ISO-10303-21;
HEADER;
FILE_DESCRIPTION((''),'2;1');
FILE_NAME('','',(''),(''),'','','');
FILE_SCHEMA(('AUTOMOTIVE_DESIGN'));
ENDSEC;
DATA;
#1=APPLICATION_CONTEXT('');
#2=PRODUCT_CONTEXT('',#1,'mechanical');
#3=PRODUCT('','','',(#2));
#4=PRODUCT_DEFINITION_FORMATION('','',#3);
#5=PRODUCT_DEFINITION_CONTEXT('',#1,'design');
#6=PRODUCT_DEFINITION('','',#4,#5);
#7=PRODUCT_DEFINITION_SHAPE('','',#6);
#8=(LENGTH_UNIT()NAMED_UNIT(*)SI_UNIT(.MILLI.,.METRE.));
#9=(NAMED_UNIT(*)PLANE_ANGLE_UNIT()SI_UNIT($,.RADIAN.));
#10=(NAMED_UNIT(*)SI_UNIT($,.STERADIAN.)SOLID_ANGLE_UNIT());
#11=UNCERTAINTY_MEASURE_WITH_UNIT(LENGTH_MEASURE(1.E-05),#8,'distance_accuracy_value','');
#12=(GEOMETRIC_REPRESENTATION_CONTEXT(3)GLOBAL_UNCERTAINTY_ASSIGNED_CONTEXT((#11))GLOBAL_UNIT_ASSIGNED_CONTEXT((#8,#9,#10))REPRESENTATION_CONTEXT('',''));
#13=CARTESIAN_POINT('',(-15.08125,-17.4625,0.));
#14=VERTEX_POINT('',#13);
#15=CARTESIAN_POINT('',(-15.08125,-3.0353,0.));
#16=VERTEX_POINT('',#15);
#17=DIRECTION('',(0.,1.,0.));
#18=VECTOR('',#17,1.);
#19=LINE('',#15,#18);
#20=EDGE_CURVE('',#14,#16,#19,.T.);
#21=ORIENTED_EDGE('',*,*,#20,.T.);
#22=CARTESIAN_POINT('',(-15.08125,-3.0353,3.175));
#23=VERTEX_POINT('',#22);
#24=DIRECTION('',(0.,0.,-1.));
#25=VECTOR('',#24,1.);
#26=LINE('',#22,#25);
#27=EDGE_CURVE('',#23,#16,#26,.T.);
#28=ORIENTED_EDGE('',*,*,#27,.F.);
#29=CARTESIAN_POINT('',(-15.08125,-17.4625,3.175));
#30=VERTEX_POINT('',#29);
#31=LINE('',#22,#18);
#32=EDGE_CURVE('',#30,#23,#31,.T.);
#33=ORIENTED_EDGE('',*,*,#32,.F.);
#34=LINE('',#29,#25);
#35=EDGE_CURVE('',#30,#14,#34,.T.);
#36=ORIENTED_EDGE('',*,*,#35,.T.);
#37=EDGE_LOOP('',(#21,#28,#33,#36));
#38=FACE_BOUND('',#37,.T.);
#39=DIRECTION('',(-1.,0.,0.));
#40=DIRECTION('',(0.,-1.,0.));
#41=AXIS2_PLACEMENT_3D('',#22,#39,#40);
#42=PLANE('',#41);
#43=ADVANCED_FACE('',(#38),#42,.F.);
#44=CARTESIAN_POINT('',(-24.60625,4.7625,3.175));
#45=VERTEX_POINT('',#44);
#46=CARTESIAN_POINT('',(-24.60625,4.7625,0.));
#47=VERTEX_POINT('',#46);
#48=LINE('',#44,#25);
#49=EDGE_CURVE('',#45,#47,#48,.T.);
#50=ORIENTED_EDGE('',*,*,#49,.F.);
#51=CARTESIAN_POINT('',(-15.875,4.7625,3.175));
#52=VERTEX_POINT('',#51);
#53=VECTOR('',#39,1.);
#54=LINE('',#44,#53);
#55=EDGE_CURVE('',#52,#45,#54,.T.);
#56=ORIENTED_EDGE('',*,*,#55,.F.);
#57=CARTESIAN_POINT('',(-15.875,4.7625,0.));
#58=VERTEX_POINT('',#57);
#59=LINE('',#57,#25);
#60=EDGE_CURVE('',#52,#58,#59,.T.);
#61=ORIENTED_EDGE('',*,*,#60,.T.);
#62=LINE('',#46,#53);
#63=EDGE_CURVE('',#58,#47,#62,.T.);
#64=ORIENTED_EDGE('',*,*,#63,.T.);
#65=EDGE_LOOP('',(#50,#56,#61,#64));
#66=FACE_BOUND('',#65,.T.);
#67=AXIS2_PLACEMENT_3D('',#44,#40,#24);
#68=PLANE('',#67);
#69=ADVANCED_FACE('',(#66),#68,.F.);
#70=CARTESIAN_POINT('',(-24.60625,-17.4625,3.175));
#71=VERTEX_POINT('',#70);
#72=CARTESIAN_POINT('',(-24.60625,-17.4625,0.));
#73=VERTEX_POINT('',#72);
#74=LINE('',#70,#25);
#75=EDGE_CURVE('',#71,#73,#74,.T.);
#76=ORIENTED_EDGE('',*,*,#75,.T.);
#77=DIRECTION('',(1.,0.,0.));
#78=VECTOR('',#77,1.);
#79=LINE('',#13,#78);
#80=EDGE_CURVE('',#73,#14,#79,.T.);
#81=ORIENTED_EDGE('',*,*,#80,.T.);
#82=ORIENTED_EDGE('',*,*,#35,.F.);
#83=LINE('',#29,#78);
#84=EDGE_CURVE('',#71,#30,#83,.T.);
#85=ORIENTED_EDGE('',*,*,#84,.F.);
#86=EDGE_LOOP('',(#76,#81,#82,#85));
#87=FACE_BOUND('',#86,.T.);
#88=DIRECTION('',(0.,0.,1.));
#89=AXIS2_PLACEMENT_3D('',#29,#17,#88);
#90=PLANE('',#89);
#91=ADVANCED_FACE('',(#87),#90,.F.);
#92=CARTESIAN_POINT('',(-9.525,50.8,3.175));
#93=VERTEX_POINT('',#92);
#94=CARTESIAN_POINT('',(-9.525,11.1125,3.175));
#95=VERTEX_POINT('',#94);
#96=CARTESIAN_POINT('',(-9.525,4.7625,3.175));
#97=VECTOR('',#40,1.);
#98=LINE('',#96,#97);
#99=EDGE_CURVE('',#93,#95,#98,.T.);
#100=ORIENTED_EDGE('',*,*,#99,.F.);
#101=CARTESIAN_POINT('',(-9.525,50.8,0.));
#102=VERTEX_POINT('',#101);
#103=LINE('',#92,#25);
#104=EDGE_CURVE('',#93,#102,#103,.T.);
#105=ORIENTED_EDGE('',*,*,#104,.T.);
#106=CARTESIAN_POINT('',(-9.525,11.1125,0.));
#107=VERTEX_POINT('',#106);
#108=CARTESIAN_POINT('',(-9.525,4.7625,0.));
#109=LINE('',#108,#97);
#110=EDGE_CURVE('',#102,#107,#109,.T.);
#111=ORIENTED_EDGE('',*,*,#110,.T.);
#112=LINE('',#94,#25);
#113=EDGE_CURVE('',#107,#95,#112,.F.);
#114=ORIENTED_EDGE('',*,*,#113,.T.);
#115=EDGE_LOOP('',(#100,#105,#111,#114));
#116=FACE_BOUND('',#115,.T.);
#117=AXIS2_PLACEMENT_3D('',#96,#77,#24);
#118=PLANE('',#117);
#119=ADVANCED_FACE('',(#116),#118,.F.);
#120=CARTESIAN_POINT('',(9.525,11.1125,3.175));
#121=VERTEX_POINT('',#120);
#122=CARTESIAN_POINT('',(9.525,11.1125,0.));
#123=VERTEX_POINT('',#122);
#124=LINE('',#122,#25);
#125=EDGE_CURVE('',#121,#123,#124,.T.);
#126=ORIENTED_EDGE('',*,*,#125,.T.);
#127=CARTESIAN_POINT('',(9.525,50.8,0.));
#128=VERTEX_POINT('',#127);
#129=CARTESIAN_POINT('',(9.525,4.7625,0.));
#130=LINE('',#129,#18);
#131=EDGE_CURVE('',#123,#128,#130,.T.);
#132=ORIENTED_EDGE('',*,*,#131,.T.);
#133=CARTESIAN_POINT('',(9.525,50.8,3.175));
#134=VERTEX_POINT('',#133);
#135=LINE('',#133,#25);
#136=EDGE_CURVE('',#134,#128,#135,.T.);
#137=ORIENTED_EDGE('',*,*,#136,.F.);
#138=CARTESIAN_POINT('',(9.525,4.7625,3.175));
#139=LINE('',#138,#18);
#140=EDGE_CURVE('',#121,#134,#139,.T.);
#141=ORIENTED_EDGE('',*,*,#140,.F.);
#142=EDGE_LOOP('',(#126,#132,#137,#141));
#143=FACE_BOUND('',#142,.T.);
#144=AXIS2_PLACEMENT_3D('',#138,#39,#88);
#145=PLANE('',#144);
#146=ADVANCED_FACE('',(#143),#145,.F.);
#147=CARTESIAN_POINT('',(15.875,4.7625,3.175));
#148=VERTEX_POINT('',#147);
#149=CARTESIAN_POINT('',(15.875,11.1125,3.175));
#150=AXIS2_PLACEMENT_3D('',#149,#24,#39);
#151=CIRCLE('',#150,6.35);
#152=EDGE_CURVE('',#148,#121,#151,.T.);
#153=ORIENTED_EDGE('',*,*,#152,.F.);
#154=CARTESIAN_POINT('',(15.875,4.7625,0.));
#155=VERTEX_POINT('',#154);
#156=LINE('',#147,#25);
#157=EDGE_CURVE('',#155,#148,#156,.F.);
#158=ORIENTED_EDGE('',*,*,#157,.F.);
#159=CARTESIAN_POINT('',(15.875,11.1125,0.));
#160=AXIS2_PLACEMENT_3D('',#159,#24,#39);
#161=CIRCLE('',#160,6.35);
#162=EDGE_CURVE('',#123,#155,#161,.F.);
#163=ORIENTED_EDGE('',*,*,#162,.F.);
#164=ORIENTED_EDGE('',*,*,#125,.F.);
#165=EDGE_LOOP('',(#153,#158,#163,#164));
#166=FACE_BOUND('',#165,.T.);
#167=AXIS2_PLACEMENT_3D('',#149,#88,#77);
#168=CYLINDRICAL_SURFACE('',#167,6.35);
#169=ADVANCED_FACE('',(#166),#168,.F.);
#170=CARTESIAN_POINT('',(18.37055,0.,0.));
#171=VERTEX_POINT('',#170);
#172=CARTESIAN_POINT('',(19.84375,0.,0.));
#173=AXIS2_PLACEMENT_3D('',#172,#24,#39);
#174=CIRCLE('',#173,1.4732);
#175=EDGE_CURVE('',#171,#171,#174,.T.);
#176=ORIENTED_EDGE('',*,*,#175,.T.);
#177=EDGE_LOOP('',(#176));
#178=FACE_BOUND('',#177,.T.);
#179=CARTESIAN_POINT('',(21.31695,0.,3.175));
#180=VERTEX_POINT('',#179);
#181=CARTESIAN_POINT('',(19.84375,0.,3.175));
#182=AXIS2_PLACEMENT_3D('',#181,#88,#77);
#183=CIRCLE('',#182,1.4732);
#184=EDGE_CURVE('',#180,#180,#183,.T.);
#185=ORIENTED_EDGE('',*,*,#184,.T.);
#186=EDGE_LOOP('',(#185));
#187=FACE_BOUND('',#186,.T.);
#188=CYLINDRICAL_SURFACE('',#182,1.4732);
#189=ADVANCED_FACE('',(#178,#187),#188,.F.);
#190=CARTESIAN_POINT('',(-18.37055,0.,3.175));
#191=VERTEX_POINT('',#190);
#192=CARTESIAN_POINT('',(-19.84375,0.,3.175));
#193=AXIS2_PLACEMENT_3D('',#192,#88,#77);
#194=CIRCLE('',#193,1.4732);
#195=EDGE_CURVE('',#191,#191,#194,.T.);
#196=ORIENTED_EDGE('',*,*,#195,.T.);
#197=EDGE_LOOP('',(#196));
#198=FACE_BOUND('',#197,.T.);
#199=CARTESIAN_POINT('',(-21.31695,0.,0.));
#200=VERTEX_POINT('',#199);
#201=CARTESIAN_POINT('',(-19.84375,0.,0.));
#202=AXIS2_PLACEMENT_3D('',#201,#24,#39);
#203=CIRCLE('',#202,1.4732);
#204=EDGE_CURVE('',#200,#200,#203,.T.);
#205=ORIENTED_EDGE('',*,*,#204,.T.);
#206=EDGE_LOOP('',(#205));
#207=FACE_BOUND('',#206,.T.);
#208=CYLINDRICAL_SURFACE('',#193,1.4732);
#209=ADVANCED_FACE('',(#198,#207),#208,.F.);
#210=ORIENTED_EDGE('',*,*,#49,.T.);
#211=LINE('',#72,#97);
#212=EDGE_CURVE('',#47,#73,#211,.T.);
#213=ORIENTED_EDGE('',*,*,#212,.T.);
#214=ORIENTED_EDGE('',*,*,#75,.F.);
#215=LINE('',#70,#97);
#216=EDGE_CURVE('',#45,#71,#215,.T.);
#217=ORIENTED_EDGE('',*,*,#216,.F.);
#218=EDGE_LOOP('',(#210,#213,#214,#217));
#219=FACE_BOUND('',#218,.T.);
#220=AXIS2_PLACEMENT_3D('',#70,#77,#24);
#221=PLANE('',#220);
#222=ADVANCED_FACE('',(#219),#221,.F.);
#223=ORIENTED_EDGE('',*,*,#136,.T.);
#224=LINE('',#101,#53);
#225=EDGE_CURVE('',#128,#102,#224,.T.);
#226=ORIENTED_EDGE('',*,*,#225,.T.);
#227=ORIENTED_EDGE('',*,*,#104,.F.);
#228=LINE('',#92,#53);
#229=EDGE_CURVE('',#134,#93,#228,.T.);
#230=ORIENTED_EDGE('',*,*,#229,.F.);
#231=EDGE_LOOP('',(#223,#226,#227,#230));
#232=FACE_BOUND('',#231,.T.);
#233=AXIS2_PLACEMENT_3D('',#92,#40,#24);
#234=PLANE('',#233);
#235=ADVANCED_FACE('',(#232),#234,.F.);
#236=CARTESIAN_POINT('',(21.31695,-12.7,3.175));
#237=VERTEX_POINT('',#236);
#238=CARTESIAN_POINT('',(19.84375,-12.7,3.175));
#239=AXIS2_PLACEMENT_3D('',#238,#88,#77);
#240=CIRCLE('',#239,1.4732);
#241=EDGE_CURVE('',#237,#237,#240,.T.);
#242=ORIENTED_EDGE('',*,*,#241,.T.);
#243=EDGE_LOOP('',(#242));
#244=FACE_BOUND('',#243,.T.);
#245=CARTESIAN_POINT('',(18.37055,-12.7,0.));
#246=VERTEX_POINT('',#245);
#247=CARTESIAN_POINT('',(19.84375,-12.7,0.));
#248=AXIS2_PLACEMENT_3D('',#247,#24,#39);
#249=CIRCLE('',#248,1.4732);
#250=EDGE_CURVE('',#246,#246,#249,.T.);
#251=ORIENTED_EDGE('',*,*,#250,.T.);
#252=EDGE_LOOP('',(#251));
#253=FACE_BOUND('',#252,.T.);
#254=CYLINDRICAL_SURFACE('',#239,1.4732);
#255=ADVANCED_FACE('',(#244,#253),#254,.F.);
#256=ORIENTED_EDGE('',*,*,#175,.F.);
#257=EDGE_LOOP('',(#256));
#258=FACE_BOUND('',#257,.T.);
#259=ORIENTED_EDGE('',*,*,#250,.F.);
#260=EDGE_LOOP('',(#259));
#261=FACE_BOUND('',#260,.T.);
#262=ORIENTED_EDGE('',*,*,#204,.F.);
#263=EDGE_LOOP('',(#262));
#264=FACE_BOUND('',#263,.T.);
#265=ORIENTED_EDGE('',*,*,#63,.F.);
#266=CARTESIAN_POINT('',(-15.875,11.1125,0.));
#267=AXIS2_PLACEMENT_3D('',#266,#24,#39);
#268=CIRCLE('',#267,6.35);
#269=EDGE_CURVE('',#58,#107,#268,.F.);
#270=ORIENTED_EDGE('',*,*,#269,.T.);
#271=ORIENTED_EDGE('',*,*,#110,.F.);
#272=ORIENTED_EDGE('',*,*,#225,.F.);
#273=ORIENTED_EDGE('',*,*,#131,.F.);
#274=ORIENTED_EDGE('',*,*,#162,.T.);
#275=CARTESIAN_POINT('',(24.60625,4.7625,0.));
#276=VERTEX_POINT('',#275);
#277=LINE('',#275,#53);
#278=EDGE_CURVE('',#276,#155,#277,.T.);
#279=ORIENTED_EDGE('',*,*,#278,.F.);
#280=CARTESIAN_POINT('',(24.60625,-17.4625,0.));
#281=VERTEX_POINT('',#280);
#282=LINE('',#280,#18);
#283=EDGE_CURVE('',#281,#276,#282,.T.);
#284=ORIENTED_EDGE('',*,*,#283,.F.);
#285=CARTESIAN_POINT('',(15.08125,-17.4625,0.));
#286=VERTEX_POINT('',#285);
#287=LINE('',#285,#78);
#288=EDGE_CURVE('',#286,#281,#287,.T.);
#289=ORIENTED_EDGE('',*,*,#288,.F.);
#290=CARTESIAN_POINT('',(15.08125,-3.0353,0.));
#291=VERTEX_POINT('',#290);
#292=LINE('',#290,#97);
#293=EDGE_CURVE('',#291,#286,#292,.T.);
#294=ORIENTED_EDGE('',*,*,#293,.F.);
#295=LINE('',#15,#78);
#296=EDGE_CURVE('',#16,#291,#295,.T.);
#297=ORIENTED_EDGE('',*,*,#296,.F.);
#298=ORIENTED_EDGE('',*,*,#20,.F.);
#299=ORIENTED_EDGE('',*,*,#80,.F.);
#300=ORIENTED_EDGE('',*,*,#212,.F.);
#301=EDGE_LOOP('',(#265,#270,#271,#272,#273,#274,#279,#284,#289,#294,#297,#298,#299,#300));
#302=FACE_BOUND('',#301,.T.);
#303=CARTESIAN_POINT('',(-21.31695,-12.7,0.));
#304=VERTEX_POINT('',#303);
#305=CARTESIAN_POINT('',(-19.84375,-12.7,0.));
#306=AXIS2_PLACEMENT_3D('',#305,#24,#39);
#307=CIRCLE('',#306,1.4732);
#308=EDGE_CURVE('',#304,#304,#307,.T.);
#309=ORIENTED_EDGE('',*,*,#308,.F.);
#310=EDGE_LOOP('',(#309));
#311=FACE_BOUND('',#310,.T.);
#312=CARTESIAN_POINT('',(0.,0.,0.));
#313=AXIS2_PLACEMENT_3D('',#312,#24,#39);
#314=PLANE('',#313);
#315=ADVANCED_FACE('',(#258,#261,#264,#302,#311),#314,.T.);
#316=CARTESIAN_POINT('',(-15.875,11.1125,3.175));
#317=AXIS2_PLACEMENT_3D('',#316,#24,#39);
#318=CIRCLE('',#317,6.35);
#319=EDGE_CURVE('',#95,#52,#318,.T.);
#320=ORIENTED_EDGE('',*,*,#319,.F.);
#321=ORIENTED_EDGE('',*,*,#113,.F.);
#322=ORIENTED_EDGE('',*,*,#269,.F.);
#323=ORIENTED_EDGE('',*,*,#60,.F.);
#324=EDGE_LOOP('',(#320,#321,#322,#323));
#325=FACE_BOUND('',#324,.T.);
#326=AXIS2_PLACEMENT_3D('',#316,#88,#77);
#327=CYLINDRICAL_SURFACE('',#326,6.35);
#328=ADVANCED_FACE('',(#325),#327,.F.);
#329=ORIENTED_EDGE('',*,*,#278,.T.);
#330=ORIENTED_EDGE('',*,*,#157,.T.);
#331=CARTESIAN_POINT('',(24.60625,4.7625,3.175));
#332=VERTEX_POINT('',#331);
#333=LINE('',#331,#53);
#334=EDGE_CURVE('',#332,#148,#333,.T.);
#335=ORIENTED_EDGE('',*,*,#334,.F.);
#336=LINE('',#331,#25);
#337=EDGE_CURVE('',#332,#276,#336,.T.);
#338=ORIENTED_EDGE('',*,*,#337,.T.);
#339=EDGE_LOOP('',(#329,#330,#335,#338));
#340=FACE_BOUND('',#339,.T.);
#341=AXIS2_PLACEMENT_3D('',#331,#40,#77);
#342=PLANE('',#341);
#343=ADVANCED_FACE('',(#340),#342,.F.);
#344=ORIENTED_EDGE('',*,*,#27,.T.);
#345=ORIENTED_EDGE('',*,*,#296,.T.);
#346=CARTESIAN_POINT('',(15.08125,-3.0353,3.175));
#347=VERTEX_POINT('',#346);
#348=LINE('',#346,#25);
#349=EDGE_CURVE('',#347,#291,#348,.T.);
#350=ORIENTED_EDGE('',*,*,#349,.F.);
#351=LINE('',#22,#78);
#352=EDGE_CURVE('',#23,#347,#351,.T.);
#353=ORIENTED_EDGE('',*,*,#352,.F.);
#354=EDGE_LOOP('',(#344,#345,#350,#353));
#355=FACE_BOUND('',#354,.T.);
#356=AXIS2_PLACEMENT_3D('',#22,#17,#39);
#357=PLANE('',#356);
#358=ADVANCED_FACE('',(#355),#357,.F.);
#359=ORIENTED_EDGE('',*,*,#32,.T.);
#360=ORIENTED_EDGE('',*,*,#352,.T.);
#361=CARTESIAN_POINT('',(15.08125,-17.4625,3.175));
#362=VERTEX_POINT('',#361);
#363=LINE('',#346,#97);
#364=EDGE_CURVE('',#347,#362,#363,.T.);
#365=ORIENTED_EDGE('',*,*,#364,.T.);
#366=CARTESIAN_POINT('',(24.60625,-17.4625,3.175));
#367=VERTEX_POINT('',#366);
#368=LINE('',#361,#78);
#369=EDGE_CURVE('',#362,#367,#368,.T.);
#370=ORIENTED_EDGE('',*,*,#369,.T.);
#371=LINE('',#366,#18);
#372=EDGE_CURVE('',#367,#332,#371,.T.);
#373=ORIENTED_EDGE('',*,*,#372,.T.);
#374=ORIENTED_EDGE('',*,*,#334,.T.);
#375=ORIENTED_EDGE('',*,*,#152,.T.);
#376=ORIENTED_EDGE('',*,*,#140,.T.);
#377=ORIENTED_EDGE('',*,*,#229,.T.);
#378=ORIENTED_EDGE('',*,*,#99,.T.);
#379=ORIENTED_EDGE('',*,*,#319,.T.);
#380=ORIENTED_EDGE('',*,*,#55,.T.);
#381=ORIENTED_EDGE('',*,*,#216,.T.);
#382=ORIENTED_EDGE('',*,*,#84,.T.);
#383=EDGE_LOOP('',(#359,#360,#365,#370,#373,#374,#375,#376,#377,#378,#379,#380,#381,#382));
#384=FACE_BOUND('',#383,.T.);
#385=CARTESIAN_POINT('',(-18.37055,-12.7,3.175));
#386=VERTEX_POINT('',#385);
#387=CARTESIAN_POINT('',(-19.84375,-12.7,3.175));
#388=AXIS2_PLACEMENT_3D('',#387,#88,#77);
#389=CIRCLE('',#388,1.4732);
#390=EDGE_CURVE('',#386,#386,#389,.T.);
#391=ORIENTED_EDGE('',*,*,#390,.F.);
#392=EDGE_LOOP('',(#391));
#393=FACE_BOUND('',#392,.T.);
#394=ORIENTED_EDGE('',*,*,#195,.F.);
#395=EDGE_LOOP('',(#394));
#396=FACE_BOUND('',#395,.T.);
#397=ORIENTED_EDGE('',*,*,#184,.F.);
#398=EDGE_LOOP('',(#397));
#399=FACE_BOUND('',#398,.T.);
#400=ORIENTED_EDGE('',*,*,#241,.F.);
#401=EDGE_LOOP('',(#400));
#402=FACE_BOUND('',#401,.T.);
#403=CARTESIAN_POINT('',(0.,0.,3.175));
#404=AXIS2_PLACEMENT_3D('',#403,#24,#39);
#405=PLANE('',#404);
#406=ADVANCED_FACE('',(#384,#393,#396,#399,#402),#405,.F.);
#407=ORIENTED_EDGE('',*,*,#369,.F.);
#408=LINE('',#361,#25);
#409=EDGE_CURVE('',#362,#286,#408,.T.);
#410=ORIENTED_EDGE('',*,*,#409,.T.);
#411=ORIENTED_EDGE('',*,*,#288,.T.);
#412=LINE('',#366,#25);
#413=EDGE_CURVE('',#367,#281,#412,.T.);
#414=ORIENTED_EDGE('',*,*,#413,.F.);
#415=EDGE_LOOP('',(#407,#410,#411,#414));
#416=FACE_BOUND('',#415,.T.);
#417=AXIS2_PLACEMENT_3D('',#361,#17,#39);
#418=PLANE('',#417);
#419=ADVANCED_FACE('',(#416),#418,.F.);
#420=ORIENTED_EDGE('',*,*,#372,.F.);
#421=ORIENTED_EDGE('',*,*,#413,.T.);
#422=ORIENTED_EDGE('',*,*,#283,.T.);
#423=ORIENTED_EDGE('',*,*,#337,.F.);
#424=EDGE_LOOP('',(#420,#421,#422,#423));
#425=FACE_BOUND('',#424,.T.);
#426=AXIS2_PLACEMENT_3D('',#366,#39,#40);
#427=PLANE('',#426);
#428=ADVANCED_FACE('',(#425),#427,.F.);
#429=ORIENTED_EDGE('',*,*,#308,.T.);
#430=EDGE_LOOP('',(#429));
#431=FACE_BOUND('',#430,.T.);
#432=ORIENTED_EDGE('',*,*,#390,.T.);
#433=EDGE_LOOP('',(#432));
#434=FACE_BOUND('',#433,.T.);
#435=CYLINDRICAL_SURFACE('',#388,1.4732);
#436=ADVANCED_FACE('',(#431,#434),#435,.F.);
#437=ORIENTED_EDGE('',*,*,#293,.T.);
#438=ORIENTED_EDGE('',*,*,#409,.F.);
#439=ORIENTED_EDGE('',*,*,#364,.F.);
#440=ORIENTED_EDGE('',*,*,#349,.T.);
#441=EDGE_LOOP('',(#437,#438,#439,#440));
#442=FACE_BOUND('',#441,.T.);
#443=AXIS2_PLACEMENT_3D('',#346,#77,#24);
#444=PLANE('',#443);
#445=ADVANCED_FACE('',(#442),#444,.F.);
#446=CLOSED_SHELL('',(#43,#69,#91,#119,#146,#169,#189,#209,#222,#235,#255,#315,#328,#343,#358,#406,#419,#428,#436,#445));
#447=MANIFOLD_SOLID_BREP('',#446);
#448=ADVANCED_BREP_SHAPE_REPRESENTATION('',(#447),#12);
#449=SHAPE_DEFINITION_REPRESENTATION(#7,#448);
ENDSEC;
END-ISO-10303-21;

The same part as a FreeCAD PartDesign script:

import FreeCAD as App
import Part
import Sketcher
from FreeCAD import Vector
Q = App.Units.Quantity


def edges_at(feature, points):
    """Names of the edges that pass closest to the given points."""
    edges = feature.Shape.Edges
    near = lambda p: min(range(len(edges)), key=lambda i: edges[i].distToShape(Part.Vertex(*p))[0])
    return sorted({f"Edge{near(p) + 1}" for p in points})


def add_polygon(sketch, points):
    """Adds a closed chain of lines whose ends are joined by coincident constraints."""
    first, n = sketch.GeometryCount, len(points)
    for a, b in zip(points, points[1:] + points[:1]):
        sketch.addGeometry(Part.LineSegment(App.Vector(*a, 0), App.Vector(*b, 0)), False)
    for i in range(n):
        sketch.addConstraint(Sketcher.Constraint("Coincident", first + i, 2, first + (i + 1) % n, 1))

doc = App.newDocument("Part")
body = doc.addObject("PartDesign::Body", "Body")

# Sketch on XY plane
sketch1 = body.newObject("Sketcher::SketchObject", "Sketch")
sketch1.AttachmentSupport = (doc.getObject("XY_Plane"), [""])
sketch1.MapMode = "FlatFace"
add_polygon(sketch1, [(-15, -17), (-15, -3), (15, -3), (15, -17), (25, -17), (25, 5), (10, 5), (10, 51), (-10, 51), (-10, 5), (-25, 5), (-25, -17)])  # lines 0-11
sketch1.addConstraint(Sketcher.Constraint("Vertical", 0))
sketch1.addConstraint(Sketcher.Constraint("Horizontal", 1))
sketch1.addConstraint(Sketcher.Constraint("Vertical", 2))
sketch1.addConstraint(Sketcher.Constraint("Horizontal", 3))
sketch1.addConstraint(Sketcher.Constraint("Vertical", 4))
sketch1.addConstraint(Sketcher.Constraint("Horizontal", 5))
sketch1.addConstraint(Sketcher.Constraint("Vertical", 6))
sketch1.addConstraint(Sketcher.Constraint("Horizontal", 7))
sketch1.addConstraint(Sketcher.Constraint("Vertical", 8))
sketch1.addConstraint(Sketcher.Constraint("Horizontal", 9))
sketch1.addConstraint(Sketcher.Constraint("Vertical", 10))
sketch1.addConstraint(Sketcher.Constraint("Horizontal", 11))
sketch1.addConstraint(Sketcher.Constraint("Symmetric", 5, 2, 8, 2, -2))
sketch1.addConstraint(Sketcher.Constraint("Symmetric", 3, 2, 10, 2, -2))
sketch1.addConstraint(Sketcher.Constraint("Equal", 3, 11))
sketch1.addConstraint(Sketcher.Constraint("DistanceY", -1, 1, 6, 2, Q("2 in")))
sketch1.addConstraint(Sketcher.Constraint("DistanceX", 7, 2, 7, 1, Q("0.75 in")))
sketch1.addConstraint(Sketcher.Constraint("DistanceX", 1, 1, 1, 2, Q("1.1875 in")))
sketch1.addConstraint(Sketcher.Constraint("DistanceX", 3, 1, 3, 2, Q("0.375 in")))
sketch1.addConstraint(Sketcher.Constraint("DistanceY", 0, 1, 0, 2, Q("0.568 in")))
sketch1.addConstraint(Sketcher.Constraint("DistanceY", 4, 1, 4, 2, Q("0.875 in")))
sketch1.addConstraint(Sketcher.Constraint("DistanceY", 6, 1, 6, 2, Q("1.8125 in")))
pad1 = body.newObject("PartDesign::Pad", "Pad")
pad1.Profile = sketch1
pad1.Length = Q("0.125 in")

# Sketch on XY plane
sketch2 = body.newObject("Sketcher::SketchObject", "Sketch001")
sketch2.AttachmentSupport = (doc.getObject("XY_Plane"), [""])
sketch2.MapMode = "FlatFace"
sketch2.AttachmentOffset = App.Placement(Vector(0, 0, 0.125 * 25.4), App.Rotation())
sketch2.addGeometry(Part.Circle(Vector(-19.8, 0, 0), Vector(0, 0, 1), 1.5), False)
sketch2.addGeometry(Part.Circle(Vector(19.8, 0, 0), Vector(0, 0, 1), 1.5), False)
sketch2.addGeometry(Part.Circle(Vector(19.8, -12.7, 0), Vector(0, 0, 1), 1.5), False)
sketch2.addGeometry(Part.Circle(Vector(-19.8, -12.7, 0), Vector(0, 0, 1), 1.5), False)
sketch2.addConstraint(Sketcher.Constraint("Equal", 0, 1))
sketch2.addConstraint(Sketcher.Constraint("Equal", 1, 2))
sketch2.addConstraint(Sketcher.Constraint("Equal", 2, 3))
sketch2.addConstraint(Sketcher.Constraint("Symmetric", 0, 3, 1, 3, -1, 1))
sketch2.addConstraint(Sketcher.Constraint("Symmetric", 2, 3, 3, 3, -2))
sketch2.addConstraint(Sketcher.Constraint("PointOnObject", 0, 3, -1))
sketch2.addConstraint(Sketcher.Constraint("Vertical", 1, 3, 2, 3))
sketch2.addConstraint(Sketcher.Constraint("Diameter", 0, Q("0.116 in")))
sketch2.addConstraint(Sketcher.Constraint("DistanceY", 2, 3, -1, 1, Q("0.5 in")))
sketch2.addConstraint(Sketcher.Constraint("DistanceX", 0, 3, -1, 1, Q("0.78125 in")))
doc.recompute()
hole = body.newObject("PartDesign::Hole", "Hole")
hole.Profile = sketch2
hole.ThreadType = "None"
hole.Diameter = Q("0.116 in")
hole.DepthType = "Dimension"
hole.Depth = Q("0.13 in")
hole.DrillPoint = "Angled"
hole.DrillPointAngle = 118
doc.recompute()

fillet = body.newObject("PartDesign::Fillet", "Fillet")
fillet.Base = (hole, edges_at(hole, [(-9.525, 4.763, 1.587), (9.525, 4.763, 1.587)]))
fillet.Radius = Q("0.25 in")

doc.recompute()
